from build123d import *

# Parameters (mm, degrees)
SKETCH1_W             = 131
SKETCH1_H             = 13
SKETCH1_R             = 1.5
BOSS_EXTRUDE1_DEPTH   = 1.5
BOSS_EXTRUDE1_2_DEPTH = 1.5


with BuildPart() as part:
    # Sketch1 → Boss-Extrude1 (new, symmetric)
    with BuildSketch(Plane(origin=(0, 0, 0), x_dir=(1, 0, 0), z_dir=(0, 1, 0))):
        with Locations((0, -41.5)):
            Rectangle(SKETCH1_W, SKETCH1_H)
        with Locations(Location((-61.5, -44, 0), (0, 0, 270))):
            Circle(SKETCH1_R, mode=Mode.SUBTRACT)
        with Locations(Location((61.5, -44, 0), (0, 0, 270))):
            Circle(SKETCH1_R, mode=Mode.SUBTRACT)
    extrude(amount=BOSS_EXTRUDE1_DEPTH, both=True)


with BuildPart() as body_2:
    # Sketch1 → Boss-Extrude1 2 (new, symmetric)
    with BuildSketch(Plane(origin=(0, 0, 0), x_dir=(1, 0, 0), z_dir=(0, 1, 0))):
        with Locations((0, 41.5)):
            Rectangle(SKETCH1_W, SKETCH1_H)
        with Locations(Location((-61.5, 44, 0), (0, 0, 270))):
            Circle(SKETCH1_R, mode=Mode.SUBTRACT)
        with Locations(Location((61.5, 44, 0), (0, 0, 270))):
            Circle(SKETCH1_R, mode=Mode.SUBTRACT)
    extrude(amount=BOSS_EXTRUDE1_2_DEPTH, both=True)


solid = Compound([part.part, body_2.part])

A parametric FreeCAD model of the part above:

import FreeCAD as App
import Part
import Sketcher

V = App.Vector
Q = App.Units.Quantity

doc = App.newDocument("Part")
body = doc.addObject("PartDesign::Body", "Body")

# Sketch on XZ plane
sketch1 = body.newObject("Sketcher::SketchObject", "Sketch")
sketch1.AttachmentSupport = (doc.getObject("XZ_Plane"), [""])
sketch1.MapMode = "FlatFace"
sketch1.addGeometry(Part.LineSegment(V(-65.5, 35, 0), V(-65.5, 48, 0)), False)
sketch1.addGeometry(Part.LineSegment(V(-65.5, 48, 0), V(65.5, 48, 0)), False)
sketch1.addGeometry(Part.LineSegment(V(65.5, 48, 0), V(65.5, 35, 0)), False)
sketch1.addGeometry(Part.LineSegment(V(65.5, 35, 0), V(-65.5, 35, 0)), False)
sketch1.addGeometry(Part.Circle(V(-61.5, 44, 0), V(0, 0, 1), 1.5), False)
sketch1.addGeometry(Part.Circle(V(61.5, 44, 0), V(0, 0, 1), 1.5), False)
sketch1.addConstraint(Sketcher.Constraint("Coincident", 0, 2, 1, 1))
sketch1.addConstraint(Sketcher.Constraint("Coincident", 1, 2, 2, 1))
sketch1.addConstraint(Sketcher.Constraint("Coincident", 2, 2, 3, 1))
sketch1.addConstraint(Sketcher.Constraint("Coincident", 3, 2, 0, 1))
sketch1.addConstraint(Sketcher.Constraint("Vertical", 0))
sketch1.addConstraint(Sketcher.Constraint("Horizontal", 1))
sketch1.addConstraint(Sketcher.Constraint("Vertical", 2))
sketch1.addConstraint(Sketcher.Constraint("Horizontal", 3))
sketch1.addConstraint(Sketcher.Constraint("Equal", 4, 5))
sketch1.addConstraint(Sketcher.Constraint("Symmetric", 4, 3, 5, 3, -2))
sketch1.addConstraint(Sketcher.Constraint("Diameter", 4, Q("3 mm")))
sketch1.addConstraint(Sketcher.Constraint("DistanceX", 1, 1, 1, 2, Q("131 mm")))
sketch1.addConstraint(Sketcher.Constraint("DistanceY", 0, 1, 0, 2, Q("13 mm")))
sketch1.addConstraint(Sketcher.Constraint("DistanceY", -1, 1, 4, 3, Q("44 mm")))
sketch1.addConstraint(Sketcher.Constraint("DistanceY", -1, 1, 0, 2, Q("48 mm")))
sketch1.addConstraint(Sketcher.Constraint("DistanceX", 4, 3, 5, 3, Q("123 mm")))
sketch1.addConstraint(Sketcher.Constraint("DistanceX", 0, 2, 4, 3, Q("4 mm")))
pad1 = body.newObject("PartDesign::Pad", "Pad")
pad1.Profile = sketch1
pad1.Length = 3
pad1.Midplane = True
body2 = doc.addObject("PartDesign::Body", "Body001")

# Sketch on XZ plane
sketch2 = body2.newObject("Sketcher::SketchObject", "Sketch001")
sketch2.AttachmentSupport = (doc.getObject("XZ_Plane001"), [""])
sketch2.MapMode = "FlatFace"
sketch2.addGeometry(Part.LineSegment(V(-65.5, -48, 0), V(-65.5, -35, 0)), False)
sketch2.addGeometry(Part.LineSegment(V(-65.5, -35, 0), V(65.5, -35, 0)), False)
sketch2.addGeometry(Part.LineSegment(V(65.5, -35, 0), V(65.5, -48, 0)), False)
sketch2.addGeometry(Part.LineSegment(V(65.5, -48, 0), V(-65.5, -48, 0)), False)
sketch2.addGeometry(Part.Circle(V(-61.5, -44, 0), V(0, 0, 1), 1.5), False)
sketch2.addGeometry(Part.Circle(V(61.5, -44, 0), V(0, 0, 1), 1.5), False)
sketch2.addConstraint(Sketcher.Constraint("Coincident", 0, 2, 1, 1))
sketch2.addConstraint(Sketcher.Constraint("Coincident", 1, 2, 2, 1))
sketch2.addConstraint(Sketcher.Constraint("Coincident", 2, 2, 3, 1))
sketch2.addConstraint(Sketcher.Constraint("Coincident", 3, 2, 0, 1))
sketch2.addConstraint(Sketcher.Constraint("Vertical", 0))
sketch2.addConstraint(Sketcher.Constraint("Horizontal", 1))
sketch2.addConstraint(Sketcher.Constraint("Vertical", 2))
sketch2.addConstraint(Sketcher.Constraint("Horizontal", 3))
sketch2.addConstraint(Sketcher.Constraint("Equal", 4, 5))
sketch2.addConstraint(Sketcher.Constraint("Symmetric", 4, 3, 5, 3, -2))
sketch2.addConstraint(Sketcher.Constraint("Diameter", 4, Q("3 mm")))
sketch2.addConstraint(Sketcher.Constraint("DistanceX", 1, 1, 1, 2, Q("131 mm")))
sketch2.addConstraint(Sketcher.Constraint("DistanceY", 0, 1, 0, 2, Q("13 mm")))
sketch2.addConstraint(Sketcher.Constraint("DistanceY", 4, 3, -1, 1, Q("44 mm")))
sketch2.addConstraint(Sketcher.Constraint("DistanceY", 0, 2, -1, 1, Q("35 mm")))
sketch2.addConstraint(Sketcher.Constraint("DistanceX", 4, 3, 5, 3, Q("123 mm")))
sketch2.addConstraint(Sketcher.Constraint("DistanceX", 0, 2, 4, 3, Q("4 mm")))
pad2 = body2.newObject("PartDesign::Pad", "Pad001")
pad2.Profile = sketch2
pad2.Length = 3
pad2.Midplane = True

doc.recompute()
